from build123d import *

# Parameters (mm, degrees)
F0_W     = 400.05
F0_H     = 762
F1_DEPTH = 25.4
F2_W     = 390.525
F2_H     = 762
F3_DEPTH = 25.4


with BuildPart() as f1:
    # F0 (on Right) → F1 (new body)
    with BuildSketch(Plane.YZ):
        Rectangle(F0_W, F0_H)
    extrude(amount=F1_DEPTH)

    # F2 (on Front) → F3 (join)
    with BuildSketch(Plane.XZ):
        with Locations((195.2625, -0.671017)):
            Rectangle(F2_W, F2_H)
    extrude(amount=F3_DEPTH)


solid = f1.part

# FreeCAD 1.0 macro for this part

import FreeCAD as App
import Part
import Sketcher
Q = App.Units.Quantity

doc = App.newDocument("Part")
body = doc.addObject("PartDesign::Body", "Body")

# Sketch on YZ plane
sketch1 = doc.addObject("Sketcher::SketchObject", "Sketch")
body.addObject(sketch1)
sketch1.AttachmentSupport = (doc.YZ_Plane, [""])
sketch1.MapMode = "FlatFace"
sketch1.addGeometry([
    Part.LineSegment(App.Vector(-200.025, 381, 0), App.Vector(-200.025, -381, 0)),
    Part.LineSegment(App.Vector(-200.025, -381, 0), App.Vector(200.025, -381, 0)),
    Part.LineSegment(App.Vector(200.025, -381, 0), App.Vector(200.025, 381, 0)),
    Part.LineSegment(App.Vector(200.025, 381, 0), App.Vector(-200.025, 381, 0)),
], False)
sketch1.addConstraint([
    Sketcher.Constraint("Coincident", 0, 2, 1, 1),
    Sketcher.Constraint("Coincident", 1, 2, 2, 1),
    Sketcher.Constraint("Coincident", 2, 2, 3, 1),
    Sketcher.Constraint("Coincident", 3, 2, 0, 1),
    Sketcher.Constraint("Vertical", 0),
    Sketcher.Constraint("Horizontal", 1),
    Sketcher.Constraint("Vertical", 2),
    Sketcher.Constraint("Horizontal", 3),
    Sketcher.Constraint("Symmetric", 0, 2, 2, 2, -1, 1),
    Sketcher.Constraint("DistanceY", 0, 2, 0, 1, Q("30 in")),
    Sketcher.Constraint("DistanceX", 1, 1, 1, 2, Q("15.75 in")),
])
pad1 = doc.addObject("PartDesign::Pad", "Pad")
body.addObject(pad1)
pad1.Profile = sketch1
pad1.Length = Q("1 in")

# Sketch on XZ plane
sketch2 = doc.addObject("Sketcher::SketchObject", "Sketch001")
body.addObject(sketch2)
sketch2.AttachmentSupport = (doc.XZ_Plane, [""])
sketch2.MapMode = "FlatFace"
sketch2.addGeometry([
    Part.LineSegment(App.Vector(0, 380.328983, 0), App.Vector(0, -381.671017, 0)),
    Part.LineSegment(App.Vector(0, -381.671017, 0), App.Vector(390.525, -381.671017, 0)),
    Part.LineSegment(App.Vector(390.525, -381.671017, 0), App.Vector(390.525, 380.328983, 0)),
    Part.LineSegment(App.Vector(390.525, 380.328983, 0), App.Vector(0, 380.328983, 0)),
], False)
sketch2.addConstraint([
    Sketcher.Constraint("Coincident", 0, 2, 1, 1),
    Sketcher.Constraint("Coincident", 1, 2, 2, 1),
    Sketcher.Constraint("Coincident", 2, 2, 3, 1),
    Sketcher.Constraint("Coincident", 3, 2, 0, 1),
    Sketcher.Constraint("Vertical", 0),
    Sketcher.Constraint("Horizontal", 1),
    Sketcher.Constraint("Vertical", 2),
    Sketcher.Constraint("Horizontal", 3),
    Sketcher.Constraint("PointOnObject", 0, 2, -2),
    Sketcher.Constraint("DistanceY", 0, 2, 0, 1, Q("30 in")),
    Sketcher.Constraint("DistanceX", 1, 1, 1, 2, Q("15.375 in")),
    Sketcher.Constraint("DistanceY", 0, 2, -1, 1, Q("381.671017 mm")),
])
pad2 = doc.addObject("PartDesign::Pad", "Pad001")
body.addObject(pad2)
pad2.Profile = sketch2
pad2.Length = Q("1 in")

doc.recompute()
